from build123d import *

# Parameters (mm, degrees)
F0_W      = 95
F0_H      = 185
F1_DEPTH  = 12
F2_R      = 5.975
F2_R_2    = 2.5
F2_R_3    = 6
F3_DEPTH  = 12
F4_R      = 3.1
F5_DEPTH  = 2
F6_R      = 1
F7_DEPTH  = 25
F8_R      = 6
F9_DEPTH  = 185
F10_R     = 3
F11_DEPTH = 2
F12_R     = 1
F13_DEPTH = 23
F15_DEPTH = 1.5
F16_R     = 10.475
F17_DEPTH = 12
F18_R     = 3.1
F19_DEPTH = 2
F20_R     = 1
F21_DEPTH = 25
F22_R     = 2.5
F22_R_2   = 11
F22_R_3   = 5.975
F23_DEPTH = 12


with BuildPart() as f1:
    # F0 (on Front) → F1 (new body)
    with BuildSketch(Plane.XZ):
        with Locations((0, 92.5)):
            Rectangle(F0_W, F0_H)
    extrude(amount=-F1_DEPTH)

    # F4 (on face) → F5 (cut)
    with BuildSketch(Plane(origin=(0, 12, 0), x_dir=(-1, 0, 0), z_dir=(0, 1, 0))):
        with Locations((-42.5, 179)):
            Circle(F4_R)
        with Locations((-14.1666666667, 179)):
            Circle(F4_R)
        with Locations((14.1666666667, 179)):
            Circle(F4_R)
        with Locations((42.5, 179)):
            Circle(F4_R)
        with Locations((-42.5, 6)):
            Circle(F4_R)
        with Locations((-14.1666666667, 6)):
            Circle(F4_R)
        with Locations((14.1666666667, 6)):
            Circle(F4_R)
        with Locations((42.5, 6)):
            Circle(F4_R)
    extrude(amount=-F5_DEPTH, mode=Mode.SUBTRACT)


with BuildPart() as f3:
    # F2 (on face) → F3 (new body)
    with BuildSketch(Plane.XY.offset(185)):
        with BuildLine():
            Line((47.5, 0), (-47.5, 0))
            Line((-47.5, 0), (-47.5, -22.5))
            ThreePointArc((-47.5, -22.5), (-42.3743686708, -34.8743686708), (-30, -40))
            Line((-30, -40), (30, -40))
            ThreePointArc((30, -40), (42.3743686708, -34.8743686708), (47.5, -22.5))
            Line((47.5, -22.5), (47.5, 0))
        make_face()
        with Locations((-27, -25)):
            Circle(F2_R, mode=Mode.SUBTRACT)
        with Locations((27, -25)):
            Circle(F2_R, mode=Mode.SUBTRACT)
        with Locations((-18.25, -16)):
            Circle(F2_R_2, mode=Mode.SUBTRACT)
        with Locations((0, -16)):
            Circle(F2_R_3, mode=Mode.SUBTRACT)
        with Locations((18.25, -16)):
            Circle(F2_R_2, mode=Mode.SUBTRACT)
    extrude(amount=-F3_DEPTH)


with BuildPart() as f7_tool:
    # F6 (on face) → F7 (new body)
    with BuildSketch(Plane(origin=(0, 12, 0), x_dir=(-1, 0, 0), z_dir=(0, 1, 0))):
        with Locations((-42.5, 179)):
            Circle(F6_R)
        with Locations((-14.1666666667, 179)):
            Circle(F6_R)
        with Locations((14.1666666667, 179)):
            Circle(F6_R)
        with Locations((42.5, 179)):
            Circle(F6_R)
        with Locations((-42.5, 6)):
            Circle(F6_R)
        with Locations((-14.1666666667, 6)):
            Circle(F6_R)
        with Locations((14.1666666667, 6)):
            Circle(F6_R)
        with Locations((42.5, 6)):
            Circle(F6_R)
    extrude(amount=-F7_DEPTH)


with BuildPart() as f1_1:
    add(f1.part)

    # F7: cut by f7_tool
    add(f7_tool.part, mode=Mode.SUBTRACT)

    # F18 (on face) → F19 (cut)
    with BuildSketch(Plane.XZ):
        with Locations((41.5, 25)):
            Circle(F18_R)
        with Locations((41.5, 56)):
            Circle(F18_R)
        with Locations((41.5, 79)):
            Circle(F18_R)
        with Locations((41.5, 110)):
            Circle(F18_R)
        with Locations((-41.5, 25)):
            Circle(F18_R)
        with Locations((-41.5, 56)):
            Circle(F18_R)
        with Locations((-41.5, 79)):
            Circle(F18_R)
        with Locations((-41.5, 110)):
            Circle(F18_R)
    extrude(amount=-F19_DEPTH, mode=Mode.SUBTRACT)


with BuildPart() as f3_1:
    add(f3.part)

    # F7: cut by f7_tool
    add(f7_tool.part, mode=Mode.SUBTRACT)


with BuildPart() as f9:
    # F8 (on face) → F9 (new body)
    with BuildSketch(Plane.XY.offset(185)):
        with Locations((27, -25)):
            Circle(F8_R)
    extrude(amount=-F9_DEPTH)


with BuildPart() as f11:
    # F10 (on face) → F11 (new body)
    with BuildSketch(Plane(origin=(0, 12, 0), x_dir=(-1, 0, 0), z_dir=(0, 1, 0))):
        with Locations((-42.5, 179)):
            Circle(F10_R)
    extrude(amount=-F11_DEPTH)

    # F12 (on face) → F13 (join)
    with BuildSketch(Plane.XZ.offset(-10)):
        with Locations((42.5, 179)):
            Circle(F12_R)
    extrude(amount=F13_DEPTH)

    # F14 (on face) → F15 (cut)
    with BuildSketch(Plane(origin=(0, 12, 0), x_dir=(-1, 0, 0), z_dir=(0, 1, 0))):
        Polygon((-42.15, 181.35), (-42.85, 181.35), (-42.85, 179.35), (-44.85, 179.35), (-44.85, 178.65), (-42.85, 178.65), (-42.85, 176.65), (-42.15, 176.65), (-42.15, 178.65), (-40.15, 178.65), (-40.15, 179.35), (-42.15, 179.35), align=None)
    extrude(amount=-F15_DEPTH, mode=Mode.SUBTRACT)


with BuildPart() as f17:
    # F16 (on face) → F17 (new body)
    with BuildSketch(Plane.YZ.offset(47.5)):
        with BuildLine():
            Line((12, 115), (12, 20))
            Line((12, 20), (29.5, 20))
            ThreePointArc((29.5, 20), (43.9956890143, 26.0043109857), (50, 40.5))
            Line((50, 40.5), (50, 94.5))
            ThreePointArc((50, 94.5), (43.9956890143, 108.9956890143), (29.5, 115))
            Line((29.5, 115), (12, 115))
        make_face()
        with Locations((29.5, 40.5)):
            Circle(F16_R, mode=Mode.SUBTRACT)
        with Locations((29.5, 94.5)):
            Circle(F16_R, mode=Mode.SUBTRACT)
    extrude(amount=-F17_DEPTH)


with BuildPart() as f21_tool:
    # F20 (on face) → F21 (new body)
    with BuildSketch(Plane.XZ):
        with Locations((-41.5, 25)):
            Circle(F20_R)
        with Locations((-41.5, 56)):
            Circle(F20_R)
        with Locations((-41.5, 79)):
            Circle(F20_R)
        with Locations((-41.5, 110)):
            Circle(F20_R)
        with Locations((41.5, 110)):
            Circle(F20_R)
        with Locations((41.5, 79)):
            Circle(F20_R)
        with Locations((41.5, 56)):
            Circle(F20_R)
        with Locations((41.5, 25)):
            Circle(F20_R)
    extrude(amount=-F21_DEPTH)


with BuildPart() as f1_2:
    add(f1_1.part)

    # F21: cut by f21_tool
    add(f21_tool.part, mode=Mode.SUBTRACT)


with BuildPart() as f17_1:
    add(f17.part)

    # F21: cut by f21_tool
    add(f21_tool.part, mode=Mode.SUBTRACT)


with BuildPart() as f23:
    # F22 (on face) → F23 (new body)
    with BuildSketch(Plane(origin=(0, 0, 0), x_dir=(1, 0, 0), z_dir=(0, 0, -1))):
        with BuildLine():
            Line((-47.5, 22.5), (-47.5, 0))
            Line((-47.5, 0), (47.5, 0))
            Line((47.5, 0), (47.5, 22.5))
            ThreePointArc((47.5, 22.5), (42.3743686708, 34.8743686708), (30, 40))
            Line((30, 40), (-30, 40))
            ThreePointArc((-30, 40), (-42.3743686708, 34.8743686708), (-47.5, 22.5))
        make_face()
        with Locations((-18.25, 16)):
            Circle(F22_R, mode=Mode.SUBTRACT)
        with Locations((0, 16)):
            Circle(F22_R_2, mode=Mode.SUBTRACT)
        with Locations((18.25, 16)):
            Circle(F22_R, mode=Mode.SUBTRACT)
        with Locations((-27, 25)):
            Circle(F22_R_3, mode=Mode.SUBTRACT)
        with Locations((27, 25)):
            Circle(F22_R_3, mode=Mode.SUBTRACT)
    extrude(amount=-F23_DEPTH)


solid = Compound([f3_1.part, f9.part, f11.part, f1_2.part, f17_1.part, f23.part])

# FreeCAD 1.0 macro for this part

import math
import FreeCAD as App
import Part
import Sketcher
from FreeCAD import Vector


def add_polygon(sketch, points):
    """Adds a closed chain of lines whose ends are joined by coincident constraints."""
    first, n = sketch.GeometryCount, len(points)
    for a, b in zip(points, points[1:] + points[:1]):
        sketch.addGeometry(Part.LineSegment(App.Vector(*a, 0), App.Vector(*b, 0)), False)
    for i in range(n):
        sketch.addConstraint(Sketcher.Constraint("Coincident", first + i, 2, first + (i + 1) % n, 1))

doc = App.newDocument("Part")
body = doc.addObject("PartDesign::Body", "Body")

# Sketch on XZ plane
sketch1 = body.newObject("Sketcher::SketchObject", "Sketch")
sketch1.AttachmentSupport = (doc.getObject("XZ_Plane"), [""])
sketch1.MapMode = "FlatFace"
add_polygon(sketch1, [(-47.5, 185), (-47.5, 0), (47.5, 0), (47.5, 185)])  # lines 0-3
sketch1.addConstraint(Sketcher.Constraint("Vertical", 0))
sketch1.addConstraint(Sketcher.Constraint("Horizontal", 1))
sketch1.addConstraint(Sketcher.Constraint("Vertical", 2))
sketch1.addConstraint(Sketcher.Constraint("Horizontal", 3))
sketch1.addConstraint(Sketcher.Constraint("Symmetric", 0, 2, 1, 2, -1, 1))
sketch1.addConstraint(Sketcher.Constraint("DistanceX", 1, 1, 1, 2, 95.0))
sketch1.addConstraint(Sketcher.Constraint("DistanceY", 0, 2, 0, 1, 185.0))
pad1 = body.newObject("PartDesign::Pad", "Pad")
pad1.Profile = sketch1
pad1.Length = 12
pad1.Reversed = True

# Sketch on XZ plane
sketch2 = body.newObject("Sketcher::SketchObject", "Sketch001")
sketch2.AttachmentSupport = (doc.getObject("XZ_Plane"), [""])
sketch2.MapMode = "FlatFace"
sketch2.AttachmentOffset = App.Placement(Vector(0, 0, -12), App.Rotation())
sketch2.addGeometry(Part.Circle(Vector(42.5, 179, 0), Vector(0, 0, 1), 3.1), False)
sketch2.addGeometry(Part.Circle(Vector(14.166667, 179, 0), Vector(0, 0, 1), 3.1), False)
sketch2.addGeometry(Part.Circle(Vector(-14.166667, 179, 0), Vector(0, 0, 1), 3.1), False)
sketch2.addGeometry(Part.Circle(Vector(-42.5, 179, 0), Vector(0, 0, 1), 3.1), False)
sketch2.addGeometry(Part.Circle(Vector(42.5, 6, 0), Vector(0, 0, 1), 3.1), False)
sketch2.addGeometry(Part.Circle(Vector(14.166667, 6, 0), Vector(0, 0, 1), 3.1), False)
sketch2.addGeometry(Part.Circle(Vector(-14.166667, 6, 0), Vector(0, 0, 1), 3.1), False)
sketch2.addGeometry(Part.Circle(Vector(-42.5, 6, 0), Vector(0, 0, 1), 3.1), False)
sketch2.addConstraint(Sketcher.Constraint("Equal", 0, 1))
sketch2.addConstraint(Sketcher.Constraint("Equal", 1, 2))
sketch2.addConstraint(Sketcher.Constraint("Equal", 2, 3))
sketch2.addConstraint(Sketcher.Constraint("Equal", 3, 4))
sketch2.addConstraint(Sketcher.Constraint("Equal", 4, 5))
sketch2.addConstraint(Sketcher.Constraint("Equal", 5, 6))
sketch2.addConstraint(Sketcher.Constraint("Equal", 6, 7))
sketch2.addConstraint(Sketcher.Constraint("Symmetric", 1, 3, 2, 3, -2))
sketch2.addConstraint(Sketcher.Constraint("Symmetric", 0, 3, 3, 3, -2))
sketch2.addConstraint(Sketcher.Constraint("Symmetric", 5, 3, 6, 3, -2))
sketch2.addConstraint(Sketcher.Constraint("Symmetric", 4, 3, 7, 3, -2))
sketch2.addConstraint(Sketcher.Constraint("Horizontal", 0, 3, 1, 3))
sketch2.addConstraint(Sketcher.Constraint("Horizontal", 4, 3, 5, 3))
sketch2.addConstraint(Sketcher.Constraint("Vertical", 0, 3, 4, 3))
sketch2.addConstraint(Sketcher.Constraint("Vertical", 1, 3, 5, 3))
sketch2.addConstraint(Sketcher.Constraint("Diameter", 0, 6.2))
sketch2.addConstraint(Sketcher.Constraint("DistanceY", -1, 1, 0, 3, 179.0))
sketch2.addConstraint(Sketcher.Constraint("DistanceY", -1, 1, 4, 3, 6.0))
sketch2.addConstraint(Sketcher.Constraint("DistanceX", 3, 3, 0, 3, 85.0))
sketch2.addConstraint(Sketcher.Constraint("DistanceX", -1, 1, 1, 3, 14.166667))
pocket1 = body.newObject("PartDesign::Pocket", "Pocket")
pocket1.Profile = sketch2
pocket1.Length = 2
pocket1.Reversed = True
body2 = doc.addObject("PartDesign::Body", "Body001")

# Sketch on XY plane
sketch3 = body2.newObject("Sketcher::SketchObject", "Sketch002")
sketch3.AttachmentSupport = (doc.getObject("XY_Plane001"), [""])
sketch3.MapMode = "FlatFace"
sketch3.AttachmentOffset = App.Placement(Vector(0, 0, 185), App.Rotation())
sketch3.addGeometry(Part.LineSegment(Vector(47.5, 0, 0), Vector(-47.5, 0, 0)), False)
sketch3.addGeometry(Part.LineSegment(Vector(-47.5, 0, 0), Vector(-47.5, -22.5, 0)), False)
sketch3.addGeometry(Part.ArcOfCircle(Part.Circle(Vector(-30, -22.5, 0), Vector(0, 0, 1), 17.5), math.radians(180), math.radians(270)), False)
sketch3.addGeometry(Part.LineSegment(Vector(-30, -40, 0), Vector(30, -40, 0)), False)
sketch3.addGeometry(Part.ArcOfCircle(Part.Circle(Vector(30, -22.5, 0), Vector(0, 0, 1), 17.5), math.radians(-90), math.radians(0)), False)
sketch3.addGeometry(Part.LineSegment(Vector(47.5, -22.5, 0), Vector(47.5, 0, 0)), False)
sketch3.addGeometry(Part.Circle(Vector(-27, -25, 0), Vector(0, 0, 1), 5.975), False)
sketch3.addGeometry(Part.Circle(Vector(27, -25, 0), Vector(0, 0, 1), 5.975), False)
sketch3.addGeometry(Part.Circle(Vector(-18.25, -16, 0), Vector(0, 0, 1), 2.5), False)
sketch3.addGeometry(Part.Circle(Vector(0, -16, 0), Vector(0, 0, 1), 6), False)
sketch3.addGeometry(Part.Circle(Vector(18.25, -16, 0), Vector(0, 0, 1), 2.5), False)
sketch3.addConstraint(Sketcher.Constraint("Coincident", 0, 2, 1, 1))
sketch3.addConstraint(Sketcher.Constraint("Tangent", 1, 2, 2, 1))
sketch3.addConstraint(Sketcher.Constraint("Tangent", 2, 2, 3, 1))
sketch3.addConstraint(Sketcher.Constraint("Tangent", 3, 2, 4, 1))
sketch3.addConstraint(Sketcher.Constraint("Tangent", 4, 2, 5, 1))
sketch3.addConstraint(Sketcher.Constraint("Coincident", 5, 2, 0, 1))
sketch3.addConstraint(Sketcher.Constraint("Horizontal", 0))
sketch3.addConstraint(Sketcher.Constraint("Vertical", 1))
sketch3.addConstraint(Sketcher.Constraint("Horizontal", 3))
sketch3.addConstraint(Sketcher.Constraint("Vertical", 5))
sketch3.addConstraint(Sketcher.Constraint("Equal", 2, 4))
sketch3.addConstraint(Sketcher.Constraint("Equal", 6, 7))
sketch3.addConstraint(Sketcher.Constraint("Equal", 8, 10))
sketch3.addConstraint(Sketcher.Constraint("Symmetric", 0, 2, 5, 2, -1, 1))
sketch3.addConstraint(Sketcher.Constraint("Symmetric", 6, 3, 7, 3, -2))
sketch3.addConstraint(Sketcher.Constraint("Symmetric", 8, 3, 10, 3, -2))
sketch3.addConstraint(Sketcher.Constraint("PointOnObject", 9, 3, -2))
sketch3.addConstraint(Sketcher.Constraint("Horizontal", 8, 3, 9, 3))
sketch3.addConstraint(Sketcher.Constraint("Diameter", 8, 5.0))
sketch3.addConstraint(Sketcher.Constraint("Diameter", 9, 12.0))
sketch3.addConstraint(Sketcher.Constraint("Radius", 2, 17.5))
sketch3.addConstraint(Sketcher.Constraint("Diameter", 6, 11.95))
sketch3.addConstraint(Sketcher.Constraint("DistanceX", 0, 2, 0, 1, 95.0))
sketch3.addConstraint(Sketcher.Constraint("DistanceY", 1, 2, 1, 1, 22.5))
sketch3.addConstraint(Sketcher.Constraint("DistanceX", 6, 3, -1, 1, 27.0))
sketch3.addConstraint(Sketcher.Constraint("DistanceY", 6, 3, -1, 1, 25.0))
sketch3.addConstraint(Sketcher.Constraint("DistanceY", 8, 3, -1, 1, 16.0))
sketch3.addConstraint(Sketcher.Constraint("DistanceX", 8, 3, 10, 3, 36.5))
pad2 = body2.newObject("PartDesign::Pad", "Pad001")
pad2.Profile = sketch3
pad2.Length = 12
pad2.Reversed = True
body3 = doc.addObject("PartDesign::Body", "Body002")
body3.AllowCompound = True

# Sketch on XZ plane
sketch4 = body3.newObject("Sketcher::SketchObject", "Sketch003")
sketch4.AttachmentSupport = (doc.getObject("XZ_Plane002"), [""])
sketch4.MapMode = "FlatFace"
sketch4.AttachmentOffset = App.Placement(Vector(0, 0, -12), App.Rotation())
sketch4.addGeometry(Part.Circle(Vector(42.5, 179, 0), Vector(0, 0, 1), 1), False)
sketch4.addGeometry(Part.Circle(Vector(14.166667, 179, 0), Vector(0, 0, 1), 1), False)
sketch4.addGeometry(Part.Circle(Vector(-14.166667, 179, 0), Vector(0, 0, 1), 1), False)
sketch4.addGeometry(Part.Circle(Vector(-42.5, 179, 0), Vector(0, 0, 1), 1), False)
sketch4.addGeometry(Part.Circle(Vector(42.5, 6, 0), Vector(0, 0, 1), 1), False)
sketch4.addGeometry(Part.Circle(Vector(14.166667, 6, 0), Vector(0, 0, 1), 1), False)
sketch4.addGeometry(Part.Circle(Vector(-14.166667, 6, 0), Vector(0, 0, 1), 1), False)
sketch4.addGeometry(Part.Circle(Vector(-42.5, 6, 0), Vector(0, 0, 1), 1), False)
sketch4.addConstraint(Sketcher.Constraint("Equal", 0, 1))
sketch4.addConstraint(Sketcher.Constraint("Equal", 1, 2))
sketch4.addConstraint(Sketcher.Constraint("Equal", 2, 3))
sketch4.addConstraint(Sketcher.Constraint("Equal", 3, 4))
sketch4.addConstraint(Sketcher.Constraint("Equal", 4, 5))
sketch4.addConstraint(Sketcher.Constraint("Equal", 5, 6))
sketch4.addConstraint(Sketcher.Constraint("Equal", 6, 7))
sketch4.addConstraint(Sketcher.Constraint("Symmetric", 1, 3, 2, 3, -2))
sketch4.addConstraint(Sketcher.Constraint("Symmetric", 0, 3, 3, 3, -2))
sketch4.addConstraint(Sketcher.Constraint("Symmetric", 5, 3, 6, 3, -2))
sketch4.addConstraint(Sketcher.Constraint("Symmetric", 4, 3, 7, 3, -2))
sketch4.addConstraint(Sketcher.Constraint("Horizontal", 0, 3, 1, 3))
sketch4.addConstraint(Sketcher.Constraint("Horizontal", 4, 3, 5, 3))
sketch4.addConstraint(Sketcher.Constraint("Vertical", 0, 3, 4, 3))
sketch4.addConstraint(Sketcher.Constraint("Vertical", 1, 3, 5, 3))
sketch4.addConstraint(Sketcher.Constraint("Diameter", 0, 2.0))
sketch4.addConstraint(Sketcher.Constraint("DistanceY", -1, 1, 0, 3, 179.0))
sketch4.addConstraint(Sketcher.Constraint("DistanceY", -1, 1, 4, 3, 6.0))
sketch4.addConstraint(Sketcher.Constraint("DistanceX", 3, 3, 0, 3, 85.0))
sketch4.addConstraint(Sketcher.Constraint("DistanceX", -1, 1, 1, 3, 14.166667))
pad3 = body3.newObject("PartDesign::Pad", "Pad002")
pad3.Profile = sketch4
pad3.Length = 25
doc.recompute()

body4 = doc.addObject("PartDesign::Body", "Body003")
body4.BaseFeature = body3
boolean = body.newObject("PartDesign::Boolean", "Boolean")
boolean.Type = "Cut"
boolean.addObjects([body4])
doc.recompute()

# Sketch on XZ plane
sketch5 = body.newObject("Sketcher::SketchObject", "Sketch004")
sketch5.AttachmentSupport = (doc.getObject("XZ_Plane"), [""])
sketch5.MapMode = "FlatFace"
sketch5.addGeometry(Part.Circle(Vector(41.5, 25, 0), Vector(0, 0, 1), 3.1), False)
sketch5.addGeometry(Part.Circle(Vector(41.5, 56, 0), Vector(0, 0, 1), 3.1), False)
sketch5.addGeometry(Part.Circle(Vector(41.5, 79, 0), Vector(0, 0, 1), 3.1), False)
sketch5.addGeometry(Part.Circle(Vector(41.5, 110, 0), Vector(0, 0, 1), 3.1), False)
sketch5.addGeometry(Part.Circle(Vector(-41.5, 25, 0), Vector(0, 0, 1), 3.1), False)
sketch5.addGeometry(Part.Circle(Vector(-41.5, 56, 0), Vector(0, 0, 1), 3.1), False)
sketch5.addGeometry(Part.Circle(Vector(-41.5, 79, 0), Vector(0, 0, 1), 3.1), False)
sketch5.addGeometry(Part.Circle(Vector(-41.5, 110, 0), Vector(0, 0, 1), 3.1), False)
sketch5.addConstraint(Sketcher.Constraint("Equal", 0, 1))
sketch5.addConstraint(Sketcher.Constraint("Equal", 1, 2))
sketch5.addConstraint(Sketcher.Constraint("Equal", 2, 3))
sketch5.addConstraint(Sketcher.Constraint("Equal", 3, 4))
sketch5.addConstraint(Sketcher.Constraint("Equal", 4, 5))
sketch5.addConstraint(Sketcher.Constraint("Equal", 5, 6))
sketch5.addConstraint(Sketcher.Constraint("Equal", 6, 7))
sketch5.addConstraint(Sketcher.Constraint("Symmetric", 0, 3, 4, 3, -2))
sketch5.addConstraint(Sketcher.Constraint("Symmetric", 1, 3, 5, 3, -2))
sketch5.addConstraint(Sketcher.Constraint("Symmetric", 2, 3, 6, 3, -2))
sketch5.addConstraint(Sketcher.Constraint("Symmetric", 3, 3, 7, 3, -2))
sketch5.addConstraint(Sketcher.Constraint("Vertical", 0, 3, 1, 3))
sketch5.addConstraint(Sketcher.Constraint("Vertical", 1, 3, 2, 3))
sketch5.addConstraint(Sketcher.Constraint("Vertical", 2, 3, 3, 3))
sketch5.addConstraint(Sketcher.Constraint("Diameter", 0, 6.2))
sketch5.addConstraint(Sketcher.Constraint("DistanceY", -1, 1, 0, 3, 25.0))
sketch5.addConstraint(Sketcher.Constraint("DistanceY", -1, 1, 1, 3, 56.0))
sketch5.addConstraint(Sketcher.Constraint("DistanceY", -1, 1, 2, 3, 79.0))
sketch5.addConstraint(Sketcher.Constraint("DistanceY", -1, 1, 3, 3, 110.0))
sketch5.addConstraint(Sketcher.Constraint("DistanceX", 4, 3, 0, 3, 83.0))
pocket2 = body.newObject("PartDesign::Pocket", "Pocket001")
pocket2.Profile = sketch5
pocket2.Length = 2
doc.recompute()

boolean2 = body2.newObject("PartDesign::Boolean", "Boolean001")
boolean2.Type = "Cut"
boolean2.addObjects([body3])
body5 = doc.addObject("PartDesign::Body", "Body004")

# Sketch on XY plane
sketch6 = body5.newObject("Sketcher::SketchObject", "Sketch005")
sketch6.AttachmentSupport = (doc.getObject("XY_Plane004"), [""])
sketch6.MapMode = "FlatFace"
sketch6.AttachmentOffset = App.Placement(Vector(0, 0, 185), App.Rotation())
sketch6.addGeometry(Part.Circle(Vector(27, -25, 0), Vector(0, 0, 1), 6), False)
sketch6.addConstraint(Sketcher.Constraint("Diameter", 0, 12.0))
sketch6.addConstraint(Sketcher.Constraint("DistanceX", -1, 1, 0, 3, 27.0))
sketch6.addConstraint(Sketcher.Constraint("DistanceY", 0, 3, -1, 1, 25.0))
pad4 = body5.newObject("PartDesign::Pad", "Pad003")
pad4.Profile = sketch6
pad4.Length = 185
pad4.Reversed = True
body6 = doc.addObject("PartDesign::Body", "Body005")

# Sketch on XZ plane
sketch7 = body6.newObject("Sketcher::SketchObject", "Sketch006")
sketch7.AttachmentSupport = (doc.getObject("XZ_Plane005"), [""])
sketch7.MapMode = "FlatFace"
sketch7.AttachmentOffset = App.Placement(Vector(0, 0, -12), App.Rotation())
sketch7.addGeometry(Part.Circle(Vector(42.5, 179, 0), Vector(0, 0, 1), 3), False)
sketch7.addConstraint(Sketcher.Constraint("Diameter", 0, 6.0))
sketch7.addConstraint(Sketcher.Constraint("DistanceY", -1, 1, 0, 3, 179.0))
sketch7.addConstraint(Sketcher.Constraint("DistanceX", -1, 1, 0, 3, 42.5))
pad5 = body6.newObject("PartDesign::Pad", "Pad004")
pad5.Profile = sketch7
pad5.Length = 2

# Sketch on XZ plane
sketch8 = body6.newObject("Sketcher::SketchObject", "Sketch007")
sketch8.AttachmentSupport = (doc.getObject("XZ_Plane005"), [""])
sketch8.MapMode = "FlatFace"
sketch8.AttachmentOffset = App.Placement(Vector(0, 0, -10), App.Rotation())
sketch8.addGeometry(Part.Circle(Vector(42.5, 179, 0), Vector(0, 0, 1), 1), False)
sketch8.addConstraint(Sketcher.Constraint("Diameter", 0, 2.0))
sketch8.addConstraint(Sketcher.Constraint("DistanceY", -1, 1, 0, 3, 179.0))
sketch8.addConstraint(Sketcher.Constraint("DistanceX", -1, 1, 0, 3, 42.5))
pad6 = body6.newObject("PartDesign::Pad", "Pad005")
pad6.Profile = sketch8
pad6.Length = 23

# Sketch on XZ plane
sketch9 = body6.newObject("Sketcher::SketchObject", "Sketch008")
sketch9.AttachmentSupport = (doc.getObject("XZ_Plane005"), [""])
sketch9.MapMode = "FlatFace"
sketch9.AttachmentOffset = App.Placement(Vector(0, 0, -12), App.Rotation())
add_polygon(sketch9, [(42.15, 181.35), (42.85, 181.35), (42.85, 179.35), (44.85, 179.35), (44.85, 178.65), (42.85, 178.65), (42.85, 176.65), (42.15, 176.65), (42.15, 178.65), (40.15, 178.65), (40.15, 179.35), (42.15, 179.35)])  # lines 0-11
sketch9.addConstraint(Sketcher.Constraint("Horizontal", 0))
sketch9.addConstraint(Sketcher.Constraint("Vertical", 1))
sketch9.addConstraint(Sketcher.Constraint("Horizontal", 2))
sketch9.addConstraint(Sketcher.Constraint("Vertical", 3))
sketch9.addConstraint(Sketcher.Constraint("Horizontal", 4))
sketch9.addConstraint(Sketcher.Constraint("Vertical", 5))
sketch9.addConstraint(Sketcher.Constraint("Horizontal", 6))
sketch9.addConstraint(Sketcher.Constraint("Vertical", 7))
sketch9.addConstraint(Sketcher.Constraint("Horizontal", 8))
sketch9.addConstraint(Sketcher.Constraint("Vertical", 9))
sketch9.addConstraint(Sketcher.Constraint("Horizontal", 10))
sketch9.addConstraint(Sketcher.Constraint("Vertical", 11))
sketch9.addConstraint(Sketcher.Constraint("Horizontal", 4, 2, 7, 2))
sketch9.addConstraint(Sketcher.Constraint("Horizontal", 2, 2, 9, 2))
sketch9.addConstraint(Sketcher.Constraint("Vertical", 1, 2, 4, 2))
sketch9.addConstraint(Sketcher.Constraint("Vertical", 7, 2, 10, 2))
sketch9.addConstraint(Sketcher.Constraint("Equal", 4, 8))
sketch9.addConstraint(Sketcher.Constraint("Equal", 10, 1))
sketch9.addConstraint(Sketcher.Constraint("Equal", 6, 3))
sketch9.addConstraint(Sketcher.Constraint("Equal", 1, 5))
sketch9.addConstraint(Sketcher.Constraint("DistanceX", 2, 1, 2, 2, 2.0))
sketch9.addConstraint(Sketcher.Constraint("DistanceX", 0, 1, 0, 2, 0.7))
sketch9.addConstraint(Sketcher.Constraint("DistanceX", -1, 1, 0, 2, 42.85))
sketch9.addConstraint(Sketcher.Constraint("DistanceY", -1, 1, 0, 2, 181.35))
pocket3 = body6.newObject("PartDesign::Pocket", "Pocket002")
pocket3.Profile = sketch9
pocket3.Length = 1.5
pocket3.Reversed = True
body7 = doc.addObject("PartDesign::Body", "Body006")

# Sketch on YZ plane
sketch10 = body7.newObject("Sketcher::SketchObject", "Sketch009")
sketch10.AttachmentSupport = (doc.getObject("YZ_Plane006"), [""])
sketch10.MapMode = "FlatFace"
sketch10.AttachmentOffset = App.Placement(Vector(0, 0, 47.5), App.Rotation())
sketch10.addGeometry(Part.LineSegment(Vector(12, 115, 0), Vector(12, 20, 0)), False)
sketch10.addGeometry(Part.LineSegment(Vector(12, 20, 0), Vector(29.5, 20, 0)), False)
sketch10.addGeometry(Part.ArcOfCircle(Part.Circle(Vector(29.5, 40.5, 0), Vector(0, 0, 1), 20.5), math.radians(-90), math.radians(0)), False)
sketch10.addGeometry(Part.LineSegment(Vector(50, 40.5, 0), Vector(50, 94.5, 0)), False)
sketch10.addGeometry(Part.ArcOfCircle(Part.Circle(Vector(29.5, 94.5, 0), Vector(0, 0, 1), 20.5), math.radians(0), math.radians(90)), False)
sketch10.addGeometry(Part.LineSegment(Vector(29.5, 115, 0), Vector(12, 115, 0)), False)
sketch10.addGeometry(Part.Circle(Vector(29.5, 40.5, 0), Vector(0, 0, 1), 10.475), False)
sketch10.addGeometry(Part.Circle(Vector(29.5, 94.5, 0), Vector(0, 0, 1), 10.475), False)
sketch10.addConstraint(Sketcher.Constraint("Coincident", 0, 2, 1, 1))
sketch10.addConstraint(Sketcher.Constraint("Tangent", 1, 2, 2, 1))
sketch10.addConstraint(Sketcher.Constraint("Tangent", 2, 2, 3, 1))
sketch10.addConstraint(Sketcher.Constraint("Tangent", 3, 2, 4, 1))
sketch10.addConstraint(Sketcher.Constraint("Tangent", 4, 2, 5, 1))
sketch10.addConstraint(Sketcher.Constraint("Coincident", 5, 2, 0, 1))
sketch10.addConstraint(Sketcher.Constraint("Vertical", 0))
sketch10.addConstraint(Sketcher.Constraint("Horizontal", 1))
sketch10.addConstraint(Sketcher.Constraint("Vertical", 3))
sketch10.addConstraint(Sketcher.Constraint("Horizontal", 5))
sketch10.addConstraint(Sketcher.Constraint("Coincident", 6, 3, 2, 3))
sketch10.addConstraint(Sketcher.Constraint("Coincident", 7, 3, 4, 3))
sketch10.addConstraint(Sketcher.Constraint("Equal", 2, 4))
sketch10.addConstraint(Sketcher.Constraint("Equal", 6, 7))
sketch10.addConstraint(Sketcher.Constraint("Radius", 2, 20.5))
sketch10.addConstraint(Sketcher.Constraint("Diameter", 6, 20.95))
sketch10.addConstraint(Sketcher.Constraint("DistanceY", 0, 2, 0, 1, 95.0))
sketch10.addConstraint(Sketcher.Constraint("DistanceX", 1, 1, 1, 2, 17.5))
sketch10.addConstraint(Sketcher.Constraint("DistanceX", -1, 1, 0, 2, 12.0))
sketch10.addConstraint(Sketcher.Constraint("DistanceY", -1, 1, 0, 2, 20.0))
pad7 = body7.newObject("PartDesign::Pad", "Pad006")
pad7.Profile = sketch10
pad7.Length = 12
pad7.Reversed = True
body8 = doc.addObject("PartDesign::Body", "Body007")
body8.AllowCompound = True

# Sketch on XZ plane
sketch11 = body8.newObject("Sketcher::SketchObject", "Sketch010")
sketch11.AttachmentSupport = (doc.getObject("XZ_Plane007"), [""])
sketch11.MapMode = "FlatFace"
sketch11.addGeometry(Part.Circle(Vector(-41.5, 25, 0), Vector(0, 0, 1), 1), False)
sketch11.addGeometry(Part.Circle(Vector(-41.5, 56, 0), Vector(0, 0, 1), 1), False)
sketch11.addGeometry(Part.Circle(Vector(-41.5, 79, 0), Vector(0, 0, 1), 1), False)
sketch11.addGeometry(Part.Circle(Vector(-41.5, 110, 0), Vector(0, 0, 1), 1), False)
sketch11.addGeometry(Part.Circle(Vector(41.5, 110, 0), Vector(0, 0, 1), 1), False)
sketch11.addGeometry(Part.Circle(Vector(41.5, 79, 0), Vector(0, 0, 1), 1), False)
sketch11.addGeometry(Part.Circle(Vector(41.5, 56, 0), Vector(0, 0, 1), 1), False)
sketch11.addGeometry(Part.Circle(Vector(41.5, 25, 0), Vector(0, 0, 1), 1), False)
sketch11.addConstraint(Sketcher.Constraint("Equal", 0, 1))
sketch11.addConstraint(Sketcher.Constraint("Equal", 1, 2))
sketch11.addConstraint(Sketcher.Constraint("Equal", 2, 3))
sketch11.addConstraint(Sketcher.Constraint("Equal", 3, 4))
sketch11.addConstraint(Sketcher.Constraint("Equal", 4, 5))
sketch11.addConstraint(Sketcher.Constraint("Equal", 5, 6))
sketch11.addConstraint(Sketcher.Constraint("Equal", 6, 7))
sketch11.addConstraint(Sketcher.Constraint("Symmetric", 3, 3, 4, 3, -2))
sketch11.addConstraint(Sketcher.Constraint("Symmetric", 2, 3, 5, 3, -2))
sketch11.addConstraint(Sketcher.Constraint("Symmetric", 1, 3, 6, 3, -2))
sketch11.addConstraint(Sketcher.Constraint("Symmetric", 0, 3, 7, 3, -2))
sketch11.addConstraint(Sketcher.Constraint("Vertical", 0, 3, 1, 3))
sketch11.addConstraint(Sketcher.Constraint("Vertical", 1, 3, 2, 3))
sketch11.addConstraint(Sketcher.Constraint("Vertical", 2, 3, 3, 3))
sketch11.addConstraint(Sketcher.Constraint("Diameter", 0, 2.0))
sketch11.addConstraint(Sketcher.Constraint("DistanceY", -1, 1, 0, 3, 25.0))
sketch11.addConstraint(Sketcher.Constraint("DistanceY", -1, 1, 1, 3, 56.0))
sketch11.addConstraint(Sketcher.Constraint("DistanceY", -1, 1, 2, 3, 79.0))
sketch11.addConstraint(Sketcher.Constraint("DistanceY", -1, 1, 3, 3, 110.0))
sketch11.addConstraint(Sketcher.Constraint("DistanceX", 3, 3, 4, 3, 83.0))
pad8 = body8.newObject("PartDesign::Pad", "Pad007")
pad8.Profile = sketch11
pad8.Length = 25
pad8.Reversed = True
doc.recompute()

body9 = doc.addObject("PartDesign::Body", "Body008")
body9.BaseFeature = body8
boolean3 = body.newObject("PartDesign::Boolean", "Boolean002")
boolean3.Type = "Cut"
boolean3.addObjects([body9])
doc.recompute()

boolean4 = body7.newObject("PartDesign::Boolean", "Boolean003")
boolean4.Type = "Cut"
boolean4.addObjects([body8])
body10 = doc.addObject("PartDesign::Body", "Body009")

# Sketch on XY plane
sketch12 = body10.newObject("Sketcher::SketchObject", "Sketch011")
sketch12.AttachmentSupport = (doc.getObject("XY_Plane009"), [""])
sketch12.MapMode = "FlatFace"
sketch12.addGeometry(Part.LineSegment(Vector(-47.5, -22.5, 0), Vector(-47.5, 0, 0)), False)
sketch12.addGeometry(Part.LineSegment(Vector(-47.5, 0, 0), Vector(47.5, 0, 0)), False)
sketch12.addGeometry(Part.LineSegment(Vector(47.5, 0, 0), Vector(47.5, -22.5, 0)), False)
sketch12.addGeometry(Part.ArcOfCircle(Part.Circle(Vector(30, -22.5, 0), Vector(0, 0, 1), 17.5), math.radians(-90), math.radians(0)), False)
sketch12.addGeometry(Part.LineSegment(Vector(30, -40, 0), Vector(-30, -40, 0)), False)
sketch12.addGeometry(Part.ArcOfCircle(Part.Circle(Vector(-30, -22.5, 0), Vector(0, 0, 1), 17.5), math.radians(180), math.radians(270)), False)
sketch12.addGeometry(Part.Circle(Vector(-18.25, -16, 0), Vector(0, 0, 1), 2.5), False)
sketch12.addGeometry(Part.Circle(Vector(0, -16, 0), Vector(0, 0, 1), 11), False)
sketch12.addGeometry(Part.Circle(Vector(18.25, -16, 0), Vector(0, 0, 1), 2.5), False)
sketch12.addGeometry(Part.Circle(Vector(-27, -25, 0), Vector(0, 0, 1), 5.975), False)
sketch12.addGeometry(Part.Circle(Vector(27, -25, 0), Vector(0, 0, 1), 5.975), False)
sketch12.addConstraint(Sketcher.Constraint("Coincident", 0, 2, 1, 1))
sketch12.addConstraint(Sketcher.Constraint("Coincident", 1, 2, 2, 1))
sketch12.addConstraint(Sketcher.Constraint("Tangent", 2, 2, 3, 2))
sketch12.addConstraint(Sketcher.Constraint("Tangent", 3, 1, 4, 1))
sketch12.addConstraint(Sketcher.Constraint("Tangent", 4, 2, 5, 2))
sketch12.addConstraint(Sketcher.Constraint("Tangent", 5, 1, 0, 1))
sketch12.addConstraint(Sketcher.Constraint("Vertical", 0))
sketch12.addConstraint(Sketcher.Constraint("Horizontal", 1))
sketch12.addConstraint(Sketcher.Constraint("Vertical", 2))
sketch12.addConstraint(Sketcher.Constraint("Horizontal", 4))
sketch12.addConstraint(Sketcher.Constraint("Equal", 3, 5))
sketch12.addConstraint(Sketcher.Constraint("Equal", 6, 8))
sketch12.addConstraint(Sketcher.Constraint("Equal", 9, 10))
sketch12.addConstraint(Sketcher.Constraint("Symmetric", 0, 2, 1, 2, -1, 1))
sketch12.addConstraint(Sketcher.Constraint("Symmetric", 6, 3, 8, 3, -2))
sketch12.addConstraint(Sketcher.Constraint("Symmetric", 9, 3, 10, 3, -2))
sketch12.addConstraint(Sketcher.Constraint("PointOnObject", 7, 3, -2))
sketch12.addConstraint(Sketcher.Constraint("Horizontal", 6, 3, 7, 3))
sketch12.addConstraint(Sketcher.Constraint("Diameter", 6, 5.0))
sketch12.addConstraint(Sketcher.Constraint("Diameter", 7, 22.0))
sketch12.addConstraint(Sketcher.Constraint("Radius", 3, 17.5))
sketch12.addConstraint(Sketcher.Constraint("Diameter", 9, 11.95))
sketch12.addConstraint(Sketcher.Constraint("DistanceX", 1, 1, 1, 2, 95.0))
sketch12.addConstraint(Sketcher.Constraint("DistanceY", 0, 1, 0, 2, 22.5))
sketch12.addConstraint(Sketcher.Constraint("DistanceY", 6, 3, -1, 1, 16.0))
sketch12.addConstraint(Sketcher.Constraint("DistanceX", 9, 3, -1, 1, 27.0))
sketch12.addConstraint(Sketcher.Constraint("DistanceY", 9, 3, -1, 1, 25.0))
sketch12.addConstraint(Sketcher.Constraint("DistanceX", 6, 3, 8, 3, 36.5))
pad9 = body10.newObject("PartDesign::Pad", "Pad008")
pad9.Profile = sketch12
pad9.Length = 12

doc.recompute()
